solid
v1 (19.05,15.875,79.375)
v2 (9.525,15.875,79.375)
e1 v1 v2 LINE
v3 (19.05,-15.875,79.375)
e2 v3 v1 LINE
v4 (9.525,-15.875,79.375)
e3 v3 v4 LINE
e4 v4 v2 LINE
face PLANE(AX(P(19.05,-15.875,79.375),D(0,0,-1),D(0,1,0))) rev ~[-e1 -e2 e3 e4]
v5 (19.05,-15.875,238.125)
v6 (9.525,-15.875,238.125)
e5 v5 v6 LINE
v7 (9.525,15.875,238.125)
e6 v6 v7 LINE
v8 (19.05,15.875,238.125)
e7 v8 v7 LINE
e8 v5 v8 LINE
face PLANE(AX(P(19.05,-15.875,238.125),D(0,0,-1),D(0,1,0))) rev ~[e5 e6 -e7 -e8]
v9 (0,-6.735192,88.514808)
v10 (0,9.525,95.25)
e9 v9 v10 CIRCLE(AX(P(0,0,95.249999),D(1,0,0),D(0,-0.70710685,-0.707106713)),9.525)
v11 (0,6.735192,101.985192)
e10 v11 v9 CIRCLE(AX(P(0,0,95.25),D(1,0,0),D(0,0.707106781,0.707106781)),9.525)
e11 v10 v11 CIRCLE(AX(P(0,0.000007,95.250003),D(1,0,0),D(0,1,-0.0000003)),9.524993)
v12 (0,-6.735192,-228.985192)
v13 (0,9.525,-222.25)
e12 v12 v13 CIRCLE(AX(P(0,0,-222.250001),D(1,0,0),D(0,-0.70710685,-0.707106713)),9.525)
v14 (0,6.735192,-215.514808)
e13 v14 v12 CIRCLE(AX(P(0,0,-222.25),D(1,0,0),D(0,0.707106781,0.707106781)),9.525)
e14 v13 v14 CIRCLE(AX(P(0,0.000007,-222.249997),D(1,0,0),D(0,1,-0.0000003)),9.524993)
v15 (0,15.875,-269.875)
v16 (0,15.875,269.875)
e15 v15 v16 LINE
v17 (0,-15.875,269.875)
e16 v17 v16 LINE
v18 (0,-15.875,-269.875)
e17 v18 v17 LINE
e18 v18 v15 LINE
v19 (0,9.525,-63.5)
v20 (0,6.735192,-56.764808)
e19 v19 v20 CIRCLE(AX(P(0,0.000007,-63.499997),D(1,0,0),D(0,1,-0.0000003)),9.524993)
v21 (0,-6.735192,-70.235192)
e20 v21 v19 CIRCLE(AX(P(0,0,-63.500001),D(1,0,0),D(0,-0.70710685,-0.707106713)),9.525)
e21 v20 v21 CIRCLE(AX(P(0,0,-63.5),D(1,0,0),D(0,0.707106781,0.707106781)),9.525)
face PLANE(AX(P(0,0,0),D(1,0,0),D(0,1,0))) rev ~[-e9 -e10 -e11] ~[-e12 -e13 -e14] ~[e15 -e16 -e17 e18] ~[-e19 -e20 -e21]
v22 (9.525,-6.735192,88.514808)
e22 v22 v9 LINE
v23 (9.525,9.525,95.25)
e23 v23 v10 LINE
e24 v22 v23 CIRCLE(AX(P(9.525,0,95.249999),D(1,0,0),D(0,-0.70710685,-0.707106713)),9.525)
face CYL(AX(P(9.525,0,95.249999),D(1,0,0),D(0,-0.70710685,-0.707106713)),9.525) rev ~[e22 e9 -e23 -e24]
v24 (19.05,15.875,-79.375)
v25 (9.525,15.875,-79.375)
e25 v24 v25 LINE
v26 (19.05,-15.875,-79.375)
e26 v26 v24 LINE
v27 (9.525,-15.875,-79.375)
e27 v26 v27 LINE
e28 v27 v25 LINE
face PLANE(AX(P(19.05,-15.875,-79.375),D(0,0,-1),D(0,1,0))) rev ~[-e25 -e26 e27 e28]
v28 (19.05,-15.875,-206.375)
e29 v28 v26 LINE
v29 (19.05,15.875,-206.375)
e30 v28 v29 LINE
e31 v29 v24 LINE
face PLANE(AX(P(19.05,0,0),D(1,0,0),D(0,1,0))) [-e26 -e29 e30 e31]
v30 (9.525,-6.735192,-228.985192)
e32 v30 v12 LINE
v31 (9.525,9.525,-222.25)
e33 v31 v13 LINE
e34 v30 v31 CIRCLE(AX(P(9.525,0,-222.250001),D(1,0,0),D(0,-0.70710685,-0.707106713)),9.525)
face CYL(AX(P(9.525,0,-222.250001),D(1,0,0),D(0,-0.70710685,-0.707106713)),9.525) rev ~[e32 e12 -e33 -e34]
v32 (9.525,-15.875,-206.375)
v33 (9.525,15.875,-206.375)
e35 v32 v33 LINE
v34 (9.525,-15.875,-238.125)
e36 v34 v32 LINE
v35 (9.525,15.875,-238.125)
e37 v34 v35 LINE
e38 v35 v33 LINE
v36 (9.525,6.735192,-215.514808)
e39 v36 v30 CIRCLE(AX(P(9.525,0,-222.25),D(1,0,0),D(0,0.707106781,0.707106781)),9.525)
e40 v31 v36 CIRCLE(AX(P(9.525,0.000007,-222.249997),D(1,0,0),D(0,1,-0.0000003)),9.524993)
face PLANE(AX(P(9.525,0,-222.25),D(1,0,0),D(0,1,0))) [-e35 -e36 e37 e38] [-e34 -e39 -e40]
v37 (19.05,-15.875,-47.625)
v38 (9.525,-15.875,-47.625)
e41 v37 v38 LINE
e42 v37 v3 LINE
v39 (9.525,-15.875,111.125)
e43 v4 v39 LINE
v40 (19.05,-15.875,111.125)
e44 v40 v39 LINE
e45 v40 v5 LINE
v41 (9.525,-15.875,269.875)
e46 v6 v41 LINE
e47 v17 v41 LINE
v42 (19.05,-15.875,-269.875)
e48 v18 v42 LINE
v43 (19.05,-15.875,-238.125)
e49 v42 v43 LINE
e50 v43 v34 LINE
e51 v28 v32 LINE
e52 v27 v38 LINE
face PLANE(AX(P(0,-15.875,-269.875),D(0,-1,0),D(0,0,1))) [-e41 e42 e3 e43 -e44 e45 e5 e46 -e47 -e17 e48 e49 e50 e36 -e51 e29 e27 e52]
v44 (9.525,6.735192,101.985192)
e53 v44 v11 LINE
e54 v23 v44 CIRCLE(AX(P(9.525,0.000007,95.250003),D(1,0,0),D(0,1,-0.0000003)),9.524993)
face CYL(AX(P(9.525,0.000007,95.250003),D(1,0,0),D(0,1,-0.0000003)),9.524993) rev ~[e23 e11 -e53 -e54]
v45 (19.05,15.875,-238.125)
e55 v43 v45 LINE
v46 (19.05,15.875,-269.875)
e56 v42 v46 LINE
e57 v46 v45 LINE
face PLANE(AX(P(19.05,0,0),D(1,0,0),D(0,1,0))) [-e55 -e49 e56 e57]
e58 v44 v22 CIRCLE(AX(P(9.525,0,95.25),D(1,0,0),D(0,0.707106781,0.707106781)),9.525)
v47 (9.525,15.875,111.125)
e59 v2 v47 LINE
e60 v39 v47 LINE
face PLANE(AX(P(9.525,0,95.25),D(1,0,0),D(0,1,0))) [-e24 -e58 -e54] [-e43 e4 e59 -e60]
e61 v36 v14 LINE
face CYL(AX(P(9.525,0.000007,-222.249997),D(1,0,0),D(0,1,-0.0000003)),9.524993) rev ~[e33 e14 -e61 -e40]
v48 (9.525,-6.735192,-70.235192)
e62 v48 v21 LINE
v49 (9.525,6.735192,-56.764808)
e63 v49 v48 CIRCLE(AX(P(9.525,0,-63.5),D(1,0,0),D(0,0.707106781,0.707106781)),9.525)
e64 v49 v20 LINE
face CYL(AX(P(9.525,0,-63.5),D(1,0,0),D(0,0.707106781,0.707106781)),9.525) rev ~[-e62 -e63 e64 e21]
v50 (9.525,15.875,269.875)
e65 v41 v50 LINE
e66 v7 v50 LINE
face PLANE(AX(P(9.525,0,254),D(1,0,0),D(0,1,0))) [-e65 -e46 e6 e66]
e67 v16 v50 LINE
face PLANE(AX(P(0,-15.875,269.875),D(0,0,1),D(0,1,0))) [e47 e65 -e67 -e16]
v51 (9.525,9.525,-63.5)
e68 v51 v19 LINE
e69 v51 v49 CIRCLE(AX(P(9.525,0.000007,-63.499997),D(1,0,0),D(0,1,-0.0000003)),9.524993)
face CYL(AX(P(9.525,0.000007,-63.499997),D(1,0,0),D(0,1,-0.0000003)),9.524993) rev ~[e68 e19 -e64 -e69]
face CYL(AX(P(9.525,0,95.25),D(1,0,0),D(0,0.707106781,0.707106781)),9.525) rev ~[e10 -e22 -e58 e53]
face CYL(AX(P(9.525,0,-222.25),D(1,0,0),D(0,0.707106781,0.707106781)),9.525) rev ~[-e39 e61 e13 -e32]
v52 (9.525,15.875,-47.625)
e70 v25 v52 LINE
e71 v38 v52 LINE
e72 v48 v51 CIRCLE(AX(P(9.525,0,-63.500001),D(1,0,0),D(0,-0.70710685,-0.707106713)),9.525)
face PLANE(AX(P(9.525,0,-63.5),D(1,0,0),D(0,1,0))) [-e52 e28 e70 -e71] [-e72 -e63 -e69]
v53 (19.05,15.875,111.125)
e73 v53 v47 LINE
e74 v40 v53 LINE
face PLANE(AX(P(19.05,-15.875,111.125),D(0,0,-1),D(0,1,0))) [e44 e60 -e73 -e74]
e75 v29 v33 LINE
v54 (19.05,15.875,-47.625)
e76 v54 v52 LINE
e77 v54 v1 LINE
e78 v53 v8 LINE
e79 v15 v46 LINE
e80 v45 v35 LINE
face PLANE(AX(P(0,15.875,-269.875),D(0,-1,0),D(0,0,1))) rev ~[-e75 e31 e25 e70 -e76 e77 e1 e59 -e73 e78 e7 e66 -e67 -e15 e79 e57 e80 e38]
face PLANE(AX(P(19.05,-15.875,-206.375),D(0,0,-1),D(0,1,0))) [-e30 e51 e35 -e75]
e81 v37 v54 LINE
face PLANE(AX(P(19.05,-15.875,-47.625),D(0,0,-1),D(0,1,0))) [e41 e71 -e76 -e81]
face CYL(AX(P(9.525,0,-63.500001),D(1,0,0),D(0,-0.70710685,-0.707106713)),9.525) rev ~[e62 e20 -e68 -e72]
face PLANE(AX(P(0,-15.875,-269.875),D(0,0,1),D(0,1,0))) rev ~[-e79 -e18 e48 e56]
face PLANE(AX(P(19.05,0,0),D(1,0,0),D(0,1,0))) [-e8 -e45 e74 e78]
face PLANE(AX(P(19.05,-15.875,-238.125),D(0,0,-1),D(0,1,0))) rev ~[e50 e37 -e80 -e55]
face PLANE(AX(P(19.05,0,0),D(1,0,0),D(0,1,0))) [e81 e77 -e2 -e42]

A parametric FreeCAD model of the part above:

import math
import FreeCAD as App
import Part
import Sketcher

V = App.Vector
Q = App.Units.Quantity


def add_polygon(sketch, points):
    """Adds a closed chain of lines whose ends are joined by coincident constraints."""
    first, n = sketch.GeometryCount, len(points)
    for a, b in zip(points, points[1:] + points[:1]):
        sketch.addGeometry(Part.LineSegment(App.Vector(*a, 0), App.Vector(*b, 0)), False)
    for i in range(n):
        sketch.addConstraint(Sketcher.Constraint("Coincident", first + i, 2, first + (i + 1) % n, 1))

doc = App.newDocument("Part")
body = doc.addObject("PartDesign::Body", "Body")

# Sketch on YZ plane
sketch1 = doc.addObject("Sketcher::SketchObject", "Sketch")
body.addObject(sketch1)
sketch1.AttachmentSupport = (doc.YZ_Plane, [""])
sketch1.MapMode = "FlatFace"
add_polygon(sketch1, [(-16, 270), (-16, -270), (16, -270), (16, 270)])  # lines 0-3
sketch1.addConstraint([
    Sketcher.Constraint("Vertical", 0),
    Sketcher.Constraint("Horizontal", 1),
    Sketcher.Constraint("Vertical", 2),
    Sketcher.Constraint("Horizontal", 3),
    Sketcher.Constraint("Symmetric", 0, 2, 2, 2, -1, 1),
    Sketcher.Constraint("DistanceX", 1, 1, 1, 2, Q("1.25 in")),
    Sketcher.Constraint("DistanceY", 0, 2, 0, 1, Q("21.25 in")),
])
pad1 = doc.addObject("PartDesign::Pad", "Pad")
body.addObject(pad1)
pad1.Profile = sketch1
pad1.Length = Q("0.75 in")

# Sketch on YZ plane
sketch2 = doc.addObject("Sketcher::SketchObject", "Sketch001")
body.addObject(sketch2)
sketch2.AttachmentSupport = (doc.YZ_Plane, [""])
sketch2.MapMode = "FlatFace"
sketch2.AttachmentOffset = App.Placement(V(0, 0, 0.75 * 25.4), App.Rotation())
add_polygon(sketch2, [(-16, 270), (-16, 238), (16, 238), (16, 270)])  # lines 0-3
add_polygon(sketch2, [(-16, -206), (-16, -238), (16, -238), (16, -206)])  # lines 4-7
add_polygon(sketch2, [(-16, 111), (-16, 79), (16, 79), (16, 111)])  # lines 8-11
add_polygon(sketch2, [(-16, -48), (-16, -79), (16, -79), (16, -48)])  # lines 12-15
sketch2.addConstraint([
    Sketcher.Constraint("Vertical", 0),
    Sketcher.Constraint("Horizontal", 1),
    Sketcher.Constraint("Vertical", 2),
    Sketcher.Constraint("Horizontal", 3),
    Sketcher.Constraint("Vertical", 4),
    Sketcher.Constraint("Horizontal", 5),
    Sketcher.Constraint("Vertical", 6),
    Sketcher.Constraint("Horizontal", 7),
    Sketcher.Constraint("Vertical", 8),
    Sketcher.Constraint("Horizontal", 9),
    Sketcher.Constraint("Vertical", 10),
    Sketcher.Constraint("Horizontal", 11),
    Sketcher.Constraint("Vertical", 12),
    Sketcher.Constraint("Horizontal", 13),
    Sketcher.Constraint("Vertical", 14),
    Sketcher.Constraint("Horizontal", 15),
    Sketcher.Constraint("Symmetric", 1, 2, 4, 2, -1, 1),
    Sketcher.Constraint("Symmetric", 9, 2, 12, 2, -1, 1),
    Sketcher.Constraint("Vertical", 3, 2, 4, 2),
    Sketcher.Constraint("Vertical", 2, 2, 5, 2),
    Sketcher.Constraint("Vertical", 7, 2, 8, 2),
    Sketcher.Constraint("Vertical", 6, 2, 9, 2),
    Sketcher.Constraint("Vertical", 10, 2, 13, 2),
    Sketcher.Constraint("Equal", 15, 0),
    Sketcher.Constraint("Equal", 2, 4),
    Sketcher.Constraint("Equal", 6, 8),
    Sketcher.Constraint("Equal", 10, 12),
    Sketcher.Constraint("DistanceY", 4, 2, 3, 2, Q("20 in")),
    Sketcher.Constraint("DistanceY", 10, 2, 1, 2, Q("5 in")),
    Sketcher.Constraint("DistanceY", 14, 2, 9, 2, Q("5 in")),
])
pocket1 = doc.addObject("PartDesign::Pocket", "Pocket")
body.addObject(pocket1)
pocket1.Profile = sketch2
pocket1.Length = Q("0.375 in")

# Sketch on YZ plane
sketch3 = doc.addObject("Sketcher::SketchObject", "Sketch002")
body.addObject(sketch3)
sketch3.AttachmentSupport = (doc.YZ_Plane, [""])
sketch3.MapMode = "FlatFace"
sketch3.AttachmentOffset = App.Placement(V(0, 0, 0.375 * 25.4), App.Rotation())
sketch3.addGeometry([
    Part.ArcOfCircle(Part.Circle(V(0, 95, 0), V(0, 0, 1), 10), math.radians(45), math.radians(225)),
    Part.ArcOfCircle(Part.Circle(V(0, 95, 0), V(0, 0, 1), 10), math.radians(-135), math.radians(0)),
    Part.ArcOfCircle(Part.Circle(V(0, 95, 0), V(0, 0, 1), 10), math.radians(0), math.radians(45)),
], False)
sketch3.addConstraint([
    Sketcher.Constraint("Tangent", 0, 2, 1, 1),
    Sketcher.Constraint("Tangent", 1, 2, 2, 1),
    Sketcher.Constraint("Tangent", 2, 2, 0, 1),
    Sketcher.Constraint("PointOnObject", 0, 3, -2),
    Sketcher.Constraint("Horizontal", 0, 3, 1, 2),
    Sketcher.Constraint("Radius", 0, Q("0.375 in")),
    Sketcher.Constraint("DistanceY", -1, 1, 0, 3, Q("3.75 in")),
    Sketcher.Constraint("DistanceX", 0, 2, 2, 3, Q("6.735199 mm")),
    Sketcher.Constraint("DistanceX", -1, 1, 2, 2, Q("6.735192 mm")),
])
pocket2 = doc.addObject("PartDesign::Pocket", "Pocket001")
body.addObject(pocket2)
pocket2.Profile = sketch3
pocket2.Length = Q("1 in")

# Sketch on YZ plane
sketch4 = doc.addObject("Sketcher::SketchObject", "Sketch003")
body.addObject(sketch4)
sketch4.AttachmentSupport = (doc.YZ_Plane, [""])
sketch4.MapMode = "FlatFace"
sketch4.AttachmentOffset = App.Placement(V(0, 0, 0.375 * 25.4), App.Rotation())
sketch4.addGeometry([
    Part.ArcOfCircle(Part.Circle(V(0, -64, 0), V(0, 0, 1), 10), math.radians(45), math.radians(225)),
    Part.ArcOfCircle(Part.Circle(V(0, -64, 0), V(0, 0, 1), 10), math.radians(-135), math.radians(0)),
    Part.ArcOfCircle(Part.Circle(V(0, -63, 0), V(0, 0, 1), 10), math.radians(0), math.radians(45)),
], False)
sketch4.addConstraint([
    Sketcher.Constraint("Tangent", 0, 2, 1, 1),
    Sketcher.Constraint("Tangent", 1, 2, 2, 1),
    Sketcher.Constraint("Tangent", 2, 2, 0, 1),
    Sketcher.Constraint("PointOnObject", 0, 3, -2),
    Sketcher.Constraint("Horizontal", 0, 3, 1, 2),
    Sketcher.Constraint("Radius", 0, Q("0.375 in")),
    Sketcher.Constraint("DistanceY", 0, 3, -1, 1, Q("2.5 in")),
    Sketcher.Constraint("DistanceX", 0, 2, 2, 3, Q("6.735199 mm")),
    Sketcher.Constraint("DistanceX", -1, 1, 2, 2, Q("6.735192 mm")),
])
pocket3 = doc.addObject("PartDesign::Pocket", "Pocket002")
body.addObject(pocket3)
pocket3.Profile = sketch4
pocket3.Length = Q("1 in")

# Sketch on YZ plane
sketch5 = doc.addObject("Sketcher::SketchObject", "Sketch004")
body.addObject(sketch5)
sketch5.AttachmentSupport = (doc.YZ_Plane, [""])
sketch5.MapMode = "FlatFace"
sketch5.AttachmentOffset = App.Placement(V(0, 0, 0.375 * 25.4), App.Rotation())
sketch5.addGeometry([
    Part.ArcOfCircle(Part.Circle(V(0, -222, 0), V(0, 0, 1), 10), math.radians(45), math.radians(225)),
    Part.ArcOfCircle(Part.Circle(V(0, -222, 0), V(0, 0, 1), 10), math.radians(-135), math.radians(0)),
    Part.ArcOfCircle(Part.Circle(V(0, -222, 0), V(0, 0, 1), 10), math.radians(0), math.radians(45)),
], False)
sketch5.addConstraint([
    Sketcher.Constraint("Tangent", 0, 2, 1, 1),
    Sketcher.Constraint("Tangent", 1, 2, 2, 1),
    Sketcher.Constraint("Tangent", 2, 2, 0, 1),
    Sketcher.Constraint("PointOnObject", 0, 3, -2),
    Sketcher.Constraint("Horizontal", 0, 3, 1, 2),
    Sketcher.Constraint("Radius", 0, Q("0.375 in")),
    Sketcher.Constraint("DistanceY", 0, 3, -1, 1, Q("8.75 in")),
    Sketcher.Constraint("DistanceX", 0, 2, 2, 3, Q("6.735199 mm")),
    Sketcher.Constraint("DistanceX", -1, 1, 2, 2, Q("6.735192 mm")),
])
pocket4 = doc.addObject("PartDesign::Pocket", "Pocket003")
body.addObject(pocket4)
pocket4.Profile = sketch5
pocket4.Length = Q("1 in")

doc.recompute()
